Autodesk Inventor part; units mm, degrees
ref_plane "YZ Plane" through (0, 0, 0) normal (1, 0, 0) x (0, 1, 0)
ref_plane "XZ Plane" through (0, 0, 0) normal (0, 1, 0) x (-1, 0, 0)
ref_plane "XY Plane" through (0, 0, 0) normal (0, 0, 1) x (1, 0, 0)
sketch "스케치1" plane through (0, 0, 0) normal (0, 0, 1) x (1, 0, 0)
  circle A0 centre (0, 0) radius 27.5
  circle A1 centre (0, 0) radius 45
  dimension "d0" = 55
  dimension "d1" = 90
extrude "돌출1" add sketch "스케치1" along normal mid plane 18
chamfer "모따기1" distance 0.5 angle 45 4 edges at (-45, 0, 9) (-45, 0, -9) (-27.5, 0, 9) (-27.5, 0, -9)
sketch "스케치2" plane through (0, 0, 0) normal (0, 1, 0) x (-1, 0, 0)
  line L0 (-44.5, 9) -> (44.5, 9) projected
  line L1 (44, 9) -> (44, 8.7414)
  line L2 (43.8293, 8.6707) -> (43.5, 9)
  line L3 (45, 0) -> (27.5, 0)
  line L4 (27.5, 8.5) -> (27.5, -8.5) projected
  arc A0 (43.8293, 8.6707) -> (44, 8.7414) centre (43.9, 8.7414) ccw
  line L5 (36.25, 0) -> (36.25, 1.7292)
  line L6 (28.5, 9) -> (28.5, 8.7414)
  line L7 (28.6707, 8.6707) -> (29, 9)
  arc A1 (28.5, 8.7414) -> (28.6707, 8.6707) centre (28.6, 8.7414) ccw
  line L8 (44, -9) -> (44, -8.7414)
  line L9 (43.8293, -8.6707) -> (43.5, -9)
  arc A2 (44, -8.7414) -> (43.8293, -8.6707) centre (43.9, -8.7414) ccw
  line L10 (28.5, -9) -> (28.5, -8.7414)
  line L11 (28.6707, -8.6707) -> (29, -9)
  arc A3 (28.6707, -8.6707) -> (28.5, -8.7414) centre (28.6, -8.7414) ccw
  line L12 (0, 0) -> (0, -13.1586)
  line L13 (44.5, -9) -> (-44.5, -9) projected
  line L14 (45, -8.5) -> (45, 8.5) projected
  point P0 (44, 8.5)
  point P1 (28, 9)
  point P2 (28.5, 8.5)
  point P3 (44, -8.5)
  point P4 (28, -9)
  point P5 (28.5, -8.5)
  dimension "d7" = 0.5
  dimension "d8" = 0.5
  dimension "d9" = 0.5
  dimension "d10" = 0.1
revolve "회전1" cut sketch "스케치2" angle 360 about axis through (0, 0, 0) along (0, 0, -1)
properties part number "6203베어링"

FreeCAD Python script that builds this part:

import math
import FreeCAD as App
import Part
import Sketcher


def edges_at(feature, points):
    """Names of the edges that pass closest to the given points."""
    edges = feature.Shape.Edges
    near = lambda p: min(range(len(edges)), key=lambda i: edges[i].distToShape(Part.Vertex(*p))[0])
    return sorted({f"Edge{near(p) + 1}" for p in points})

doc = App.newDocument("Part")
params = doc.addObject("Spreadsheet::Sheet", "Params")
for row, (alias, value) in enumerate([
    ("sketch1_diameter", "90 mm"),
    ("sketch1_diameter2", "55 mm"),
    ("pad1_length", "18 mm"),
    ("chamfer_size", "0.5 mm"),
    ("sketch2_radius", "0.1 mm"),
    ("sketch2_width", "0.5 mm"),
    ("groove_angle", "360 deg"),
], start=1):
    params.set(f"A{row}", alias)
    params.set(f"B{row}", "=" + value)
    params.setAlias(f"B{row}", alias)

body = doc.addObject("PartDesign::Body", "Body")

# Sketch on XY plane
sketch1 = body.newObject("Sketcher::SketchObject", "Sketch")
sketch1.AttachmentSupport = (doc.getObject("XY_Plane"), [""])
sketch1.MapMode = "FlatFace"
sketch1.addGeometry([
    Part.Circle(App.Vector(0, 0, 0), App.Vector(0, 0, 1), 45),
    Part.Circle(App.Vector(0, 0, 0), App.Vector(0, 0, 1), 28),
], False)
sketch1.addConstraint([
    Sketcher.Constraint("Coincident", 0, 3, -1, 1),
    Sketcher.Constraint("Coincident", 1, 3, -1, 1),
    Sketcher.Constraint("Diameter", 0, 90.0),
    Sketcher.Constraint("Diameter", 1, 55.0),
])
sketch1.setExpression("Constraints[2]", "Params.sketch1_diameter")
sketch1.setExpression("Constraints[3]", "Params.sketch1_diameter2")
pad1 = body.newObject("PartDesign::Pad", "Pad")
pad1.Profile = sketch1
pad1.setExpression("Length", "Params.pad1_length")
pad1.Midplane = True
doc.recompute()

chamfer = body.newObject("PartDesign::Chamfer", "Chamfer")
chamfer.Base = (pad1, edges_at(pad1, [
    (-45, 0, 9),
    (-45, 0, -9),
    (-27.5, 0, 9),
    (-27.5, 0, -9),
]))
chamfer.setExpression("Size", "Params.chamfer_size")

# Sketch on XZ plane
sketch2 = body.newObject("Sketcher::SketchObject", "Sketch001")
sketch2.AttachmentSupport = (doc.getObject("XZ_Plane"), [""])
sketch2.MapMode = "FlatFace"
sketch2.addGeometry([
    Part.LineSegment(App.Vector(-44, 9, 0), App.Vector(-43.5, 9, 0)),  # 0
    Part.LineSegment(App.Vector(-43.5, 9, 0), App.Vector(-43.83, 8.67, 0)),  # 1
    Part.ArcOfCircle(Part.Circle(App.Vector(-43.9, 8.74, 0), App.Vector(0, 0, 1), 0.1), math.radians(180), math.radians(315)),  # 2
    Part.LineSegment(App.Vector(-44, 8.74, 0), App.Vector(-44, 9, 0)),  # 3
    Part.LineSegment(App.Vector(-29, 9, 0), App.Vector(-28.5, 9, 0)),  # 4
    Part.LineSegment(App.Vector(-28.5, 9, 0), App.Vector(-28.5, 8.74, 0)),  # 5
    Part.ArcOfCircle(Part.Circle(App.Vector(-28.6, 8.74, 0), App.Vector(0, 0, 1), 0.1), math.radians(-135), math.radians(0)),  # 6
    Part.LineSegment(App.Vector(-28.67, 8.67, 0), App.Vector(-29, 9, 0)),  # 7
    Part.LineSegment(App.Vector(-43.5, -9, 0), App.Vector(-44, -9, 0)),  # 8
    Part.LineSegment(App.Vector(-44, -9, 0), App.Vector(-44, -8.74, 0)),  # 9
    Part.ArcOfCircle(Part.Circle(App.Vector(-43.9, -8.74, 0), App.Vector(0, 0, 1), 0.1), math.radians(45), math.radians(180)),  # 10
    Part.LineSegment(App.Vector(-43.83, -8.67, 0), App.Vector(-43.5, -9, 0)),  # 11
    Part.LineSegment(App.Vector(-28.5, -9, 0), App.Vector(-29, -9, 0)),  # 12
    Part.LineSegment(App.Vector(-29, -9, 0), App.Vector(-28.67, -8.67, 0)),  # 13
    Part.ArcOfCircle(Part.Circle(App.Vector(-28.6, -8.74, 0), App.Vector(0, 0, 1), 0.1), math.radians(0), math.radians(135)),  # 14
    Part.LineSegment(App.Vector(-28.5, -8.74, 0), App.Vector(-28.5, -9, 0)),  # 15
], False)
sketch2.addConstraint([
    Sketcher.Constraint("Coincident", 0, 2, 1, 1),
    Sketcher.Constraint("Tangent", 1, 2, 2, 2),
    Sketcher.Constraint("Tangent", 2, 1, 3, 1),
    Sketcher.Constraint("Coincident", 3, 2, 0, 1),
    Sketcher.Constraint("Coincident", 4, 2, 5, 1),
    Sketcher.Constraint("Tangent", 5, 2, 6, 2),
    Sketcher.Constraint("Tangent", 6, 1, 7, 1),
    Sketcher.Constraint("Coincident", 7, 2, 4, 1),
    Sketcher.Constraint("Coincident", 8, 2, 9, 1),
    Sketcher.Constraint("Tangent", 9, 2, 10, 2),
    Sketcher.Constraint("Tangent", 10, 1, 11, 1),
    Sketcher.Constraint("Coincident", 11, 2, 8, 1),
    Sketcher.Constraint("Coincident", 12, 2, 13, 1),
    Sketcher.Constraint("Tangent", 13, 2, 14, 2),
    Sketcher.Constraint("Tangent", 14, 1, 15, 1),
    Sketcher.Constraint("Coincident", 15, 2, 12, 1),
    Sketcher.Constraint("Horizontal", 0),
    Sketcher.Constraint("Vertical", 3),
    Sketcher.Constraint("Horizontal", 4),
    Sketcher.Constraint("Vertical", 5),
    Sketcher.Constraint("Horizontal", 8),
    Sketcher.Constraint("Vertical", 9),
    Sketcher.Constraint("Horizontal", 12),
    Sketcher.Constraint("Vertical", 15),
    Sketcher.Constraint("Equal", 2, 6),
    Sketcher.Constraint("Equal", 6, 10),
    Sketcher.Constraint("Equal", 10, 14),
    Sketcher.Constraint("Symmetric", 2, 3, 10, 3, -1),
    Sketcher.Constraint("Symmetric", 6, 3, 14, 3, -1),
    Sketcher.Constraint("Symmetric", 0, 2, 11, 2, -1),
    Sketcher.Constraint("Symmetric", 7, 2, 12, 2, -1),
    Sketcher.Constraint("Perpendicular", 1, 7),
    Sketcher.Constraint("Parallel", 7, 11),
    Sketcher.Constraint("Horizontal", 2, 3, 6, 3),
    Sketcher.Constraint("Horizontal", 3, 2, 4, 2),
    Sketcher.Constraint("Radius", 2, 0.1),
    Sketcher.Constraint("DistanceX", 0, 1, 0, 2, 0.5),
    Sketcher.Constraint("DistanceY", -1, 1, 0, 2, 9.0),
    Sketcher.Constraint("DistanceX", 2, 1, -1, 1, 44.0),
    Sketcher.Constraint("DistanceX", 7, 2, -1, 1, 29.0),
])
sketch2.setExpression("Constraints[35]", "Params.sketch2_radius")
sketch2.setExpression("Constraints[36]", "Params.sketch2_width")
groove = body.newObject("PartDesign::Groove", "Groove")
groove.Profile = sketch2
groove.ReferenceAxis = (sketch2, ["V_Axis"])
groove.setExpression("Angle", "Params.groove_angle")

doc.recompute()
